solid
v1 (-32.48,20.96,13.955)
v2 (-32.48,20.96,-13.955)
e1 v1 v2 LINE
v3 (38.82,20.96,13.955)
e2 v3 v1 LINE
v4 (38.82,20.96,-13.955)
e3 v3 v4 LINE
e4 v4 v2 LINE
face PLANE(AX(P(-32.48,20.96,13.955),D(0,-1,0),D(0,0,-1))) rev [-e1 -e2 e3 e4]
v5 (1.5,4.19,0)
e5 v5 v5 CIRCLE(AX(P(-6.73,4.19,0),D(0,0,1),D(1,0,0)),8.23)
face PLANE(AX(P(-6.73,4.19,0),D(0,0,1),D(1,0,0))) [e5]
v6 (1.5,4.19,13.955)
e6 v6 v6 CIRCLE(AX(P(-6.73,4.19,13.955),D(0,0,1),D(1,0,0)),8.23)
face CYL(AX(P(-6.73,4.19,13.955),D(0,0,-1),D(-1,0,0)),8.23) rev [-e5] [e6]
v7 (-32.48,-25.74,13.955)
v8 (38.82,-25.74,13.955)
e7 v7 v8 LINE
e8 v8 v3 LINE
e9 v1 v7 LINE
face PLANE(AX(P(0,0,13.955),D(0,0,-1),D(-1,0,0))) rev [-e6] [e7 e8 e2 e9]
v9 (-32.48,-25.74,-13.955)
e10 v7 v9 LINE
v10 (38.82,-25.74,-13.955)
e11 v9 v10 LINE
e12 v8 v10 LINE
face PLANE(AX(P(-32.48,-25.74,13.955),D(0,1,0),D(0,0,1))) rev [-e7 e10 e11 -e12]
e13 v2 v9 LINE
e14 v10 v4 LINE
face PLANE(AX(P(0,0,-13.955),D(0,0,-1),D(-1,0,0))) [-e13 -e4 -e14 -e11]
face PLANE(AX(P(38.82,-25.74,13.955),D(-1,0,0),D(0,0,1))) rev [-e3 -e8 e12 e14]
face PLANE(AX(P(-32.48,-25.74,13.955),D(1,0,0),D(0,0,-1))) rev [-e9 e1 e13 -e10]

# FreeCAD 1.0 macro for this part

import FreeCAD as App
import Part
import Sketcher

V = App.Vector
Q = App.Units.Quantity

doc = App.newDocument("Part")
body = doc.addObject("PartDesign::Body", "Body")

sketch1 = body.newObject("Sketcher::SketchObject", "Sketch")
sketch1.AttachmentSupport = (doc.getObject("XY_Plane"), [""])
sketch1.MapMode = "FlatFace"
sketch1.addGeometry(Part.LineSegment(V(-32, 21, 0), V(-32, -26, 0)), False)
sketch1.addGeometry(Part.LineSegment(V(-32, -26, 0), V(39, -26, 0)), False)
sketch1.addGeometry(Part.LineSegment(V(39, -26, 0), V(39, 21, 0)), False)
sketch1.addGeometry(Part.LineSegment(V(39, 21, 0), V(-32, 21, 0)), False)
sketch1.addConstraint(Sketcher.Constraint("Coincident", 0, 2, 1, 1))
sketch1.addConstraint(Sketcher.Constraint("Coincident", 1, 2, 2, 1))
sketch1.addConstraint(Sketcher.Constraint("Coincident", 2, 2, 3, 1))
sketch1.addConstraint(Sketcher.Constraint("Coincident", 3, 2, 0, 1))
sketch1.addConstraint(Sketcher.Constraint("Vertical", 0))
sketch1.addConstraint(Sketcher.Constraint("Horizontal", 1))
sketch1.addConstraint(Sketcher.Constraint("Vertical", 2))
sketch1.addConstraint(Sketcher.Constraint("Horizontal", 3))
sketch1.addConstraint(Sketcher.Constraint("DistanceX", 1, 1, 1, 2, Q("71.3 mm")))
sketch1.addConstraint(Sketcher.Constraint("DistanceY", 0, 2, 0, 1, Q("46.7 mm")))
sketch1.addConstraint(Sketcher.Constraint("DistanceX", 0, 2, -1, 1, Q("32.48 mm")))
sketch1.addConstraint(Sketcher.Constraint("DistanceY", 0, 2, -1, 1, Q("25.74 mm")))
pad1 = body.newObject("PartDesign::Pad", "Pad")
pad1.Profile = sketch1
pad1.Length = 27.91
pad1.Midplane = True

sketch2 = body.newObject("Sketcher::SketchObject", "Sketch001")
sketch2.AttachmentSupport = (doc.getObject("XY_Plane"), [""])
sketch2.MapMode = "FlatFace"
sketch2.addGeometry(Part.Circle(V(-7, 4, 0), V(0, 0, 1), 8), False)
sketch2.addConstraint(Sketcher.Constraint("Diameter", 0, Q("16.46 mm")))
sketch2.addConstraint(Sketcher.Constraint("DistanceX", 0, 3, -1, 1, Q("6.73 mm")))
sketch2.addConstraint(Sketcher.Constraint("DistanceY", -1, 1, 0, 3, Q("4.19 mm")))
pocket1 = body.newObject("PartDesign::Pocket", "Pocket")
pocket1.Profile = sketch2
pocket1.Type = "ThroughAll"
pocket1.Reversed = True

doc.recompute()
